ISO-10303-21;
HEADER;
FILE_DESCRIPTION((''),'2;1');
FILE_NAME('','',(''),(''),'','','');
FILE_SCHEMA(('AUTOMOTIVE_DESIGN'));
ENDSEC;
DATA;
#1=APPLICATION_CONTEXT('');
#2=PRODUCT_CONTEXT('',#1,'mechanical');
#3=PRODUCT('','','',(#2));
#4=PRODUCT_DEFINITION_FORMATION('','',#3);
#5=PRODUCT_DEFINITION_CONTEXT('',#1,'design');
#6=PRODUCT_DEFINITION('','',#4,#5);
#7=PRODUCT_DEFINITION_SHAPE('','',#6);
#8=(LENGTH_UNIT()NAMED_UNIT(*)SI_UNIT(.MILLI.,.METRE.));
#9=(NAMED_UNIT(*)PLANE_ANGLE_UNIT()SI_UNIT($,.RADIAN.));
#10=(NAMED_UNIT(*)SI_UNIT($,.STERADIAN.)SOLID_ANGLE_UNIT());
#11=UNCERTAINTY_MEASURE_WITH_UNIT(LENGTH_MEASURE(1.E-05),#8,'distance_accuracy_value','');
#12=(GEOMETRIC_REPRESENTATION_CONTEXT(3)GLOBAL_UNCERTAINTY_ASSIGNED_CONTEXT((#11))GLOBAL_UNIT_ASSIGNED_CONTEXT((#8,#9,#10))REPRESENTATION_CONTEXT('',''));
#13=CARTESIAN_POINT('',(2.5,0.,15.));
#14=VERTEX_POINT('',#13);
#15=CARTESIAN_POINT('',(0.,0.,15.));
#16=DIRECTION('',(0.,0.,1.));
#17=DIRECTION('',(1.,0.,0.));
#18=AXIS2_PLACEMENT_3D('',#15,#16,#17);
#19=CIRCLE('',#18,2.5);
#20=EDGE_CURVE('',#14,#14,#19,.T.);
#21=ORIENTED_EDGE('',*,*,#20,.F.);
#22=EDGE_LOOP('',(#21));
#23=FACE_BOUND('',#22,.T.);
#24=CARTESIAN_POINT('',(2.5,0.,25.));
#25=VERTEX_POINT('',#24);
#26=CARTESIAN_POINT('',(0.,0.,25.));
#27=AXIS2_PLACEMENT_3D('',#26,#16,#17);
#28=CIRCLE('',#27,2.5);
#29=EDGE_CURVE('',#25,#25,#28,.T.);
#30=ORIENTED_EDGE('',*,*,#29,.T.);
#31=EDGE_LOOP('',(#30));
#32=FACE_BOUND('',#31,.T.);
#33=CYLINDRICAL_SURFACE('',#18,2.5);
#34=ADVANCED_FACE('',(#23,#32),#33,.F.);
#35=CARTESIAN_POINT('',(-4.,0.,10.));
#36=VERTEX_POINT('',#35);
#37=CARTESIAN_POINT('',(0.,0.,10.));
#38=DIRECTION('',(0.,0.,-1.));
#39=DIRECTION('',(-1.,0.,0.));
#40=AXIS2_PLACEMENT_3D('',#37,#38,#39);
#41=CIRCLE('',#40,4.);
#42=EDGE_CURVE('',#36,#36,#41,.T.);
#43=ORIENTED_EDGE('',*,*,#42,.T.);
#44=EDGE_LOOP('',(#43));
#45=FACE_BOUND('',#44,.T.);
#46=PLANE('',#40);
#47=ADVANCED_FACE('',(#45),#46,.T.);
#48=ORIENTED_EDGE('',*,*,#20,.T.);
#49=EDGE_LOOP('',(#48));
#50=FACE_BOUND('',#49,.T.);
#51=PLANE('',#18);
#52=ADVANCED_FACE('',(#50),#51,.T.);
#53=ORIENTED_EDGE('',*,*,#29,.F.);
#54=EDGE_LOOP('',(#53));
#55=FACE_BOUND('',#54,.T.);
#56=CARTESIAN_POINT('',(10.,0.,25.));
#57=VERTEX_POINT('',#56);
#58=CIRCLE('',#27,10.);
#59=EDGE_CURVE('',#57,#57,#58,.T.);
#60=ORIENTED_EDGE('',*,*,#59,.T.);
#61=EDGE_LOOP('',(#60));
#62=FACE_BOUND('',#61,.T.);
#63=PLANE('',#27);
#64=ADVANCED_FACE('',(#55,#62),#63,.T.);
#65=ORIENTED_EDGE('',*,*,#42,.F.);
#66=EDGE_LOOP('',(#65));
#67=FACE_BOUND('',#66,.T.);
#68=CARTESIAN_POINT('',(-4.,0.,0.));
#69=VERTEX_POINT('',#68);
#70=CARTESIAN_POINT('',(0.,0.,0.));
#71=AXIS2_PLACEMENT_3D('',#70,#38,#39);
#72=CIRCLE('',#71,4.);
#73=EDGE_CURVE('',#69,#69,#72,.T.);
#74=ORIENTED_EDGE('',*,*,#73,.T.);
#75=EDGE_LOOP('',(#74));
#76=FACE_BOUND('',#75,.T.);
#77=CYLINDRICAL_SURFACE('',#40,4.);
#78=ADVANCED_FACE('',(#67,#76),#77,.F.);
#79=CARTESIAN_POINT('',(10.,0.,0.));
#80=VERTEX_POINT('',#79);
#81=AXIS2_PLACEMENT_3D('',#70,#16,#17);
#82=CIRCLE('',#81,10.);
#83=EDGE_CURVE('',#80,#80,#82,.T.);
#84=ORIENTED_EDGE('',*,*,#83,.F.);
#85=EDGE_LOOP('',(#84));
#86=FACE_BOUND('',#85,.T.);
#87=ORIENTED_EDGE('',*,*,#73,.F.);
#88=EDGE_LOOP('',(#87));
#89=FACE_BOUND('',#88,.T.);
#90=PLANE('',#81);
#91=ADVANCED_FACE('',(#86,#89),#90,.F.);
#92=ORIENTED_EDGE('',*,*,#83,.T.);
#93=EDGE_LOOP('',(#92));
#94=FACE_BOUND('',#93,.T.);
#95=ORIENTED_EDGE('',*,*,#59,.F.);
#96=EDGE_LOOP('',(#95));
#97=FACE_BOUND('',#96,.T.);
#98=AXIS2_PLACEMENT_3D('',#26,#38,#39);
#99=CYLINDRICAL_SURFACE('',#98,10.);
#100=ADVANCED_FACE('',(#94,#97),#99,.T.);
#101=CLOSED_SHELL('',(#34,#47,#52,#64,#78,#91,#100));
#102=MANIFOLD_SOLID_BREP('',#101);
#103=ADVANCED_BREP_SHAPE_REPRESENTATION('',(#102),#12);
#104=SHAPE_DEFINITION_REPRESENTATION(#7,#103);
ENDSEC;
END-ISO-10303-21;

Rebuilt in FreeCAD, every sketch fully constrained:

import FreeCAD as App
import Part
import Sketcher

doc = App.newDocument("Part")
body = doc.addObject("PartDesign::Body", "Body")

# Sketch on XY plane
sketch1 = body.newObject("Sketcher::SketchObject", "Sketch")
sketch1.AttachmentSupport = (doc.getObject("XY_Plane"), [""])
sketch1.MapMode = "FlatFace"
sketch1.addGeometry(Part.Circle(App.Vector(0, 0, 0), App.Vector(0, 0, 1), 10), False)
sketch1.addConstraint(Sketcher.Constraint("Coincident", 0, 3, -1, 1))
sketch1.addConstraint(Sketcher.Constraint("Diameter", 0, 20.0))
pad1 = body.newObject("PartDesign::Pad", "Pad")
pad1.Profile = sketch1
pad1.Length = 25

# Sketch on XY plane
sketch2 = body.newObject("Sketcher::SketchObject", "Sketch001")
sketch2.AttachmentSupport = (doc.getObject("XY_Plane"), [""])
sketch2.MapMode = "FlatFace"
sketch2.AttachmentOffset = App.Placement(App.Vector(0, 0, 25), App.Rotation())
sketch2.addGeometry(Part.Circle(App.Vector(0, 0, 0), App.Vector(0, 0, 1), 2.5), False)
sketch2.addConstraint(Sketcher.Constraint("Coincident", 0, 3, -1, 1))
sketch2.addConstraint(Sketcher.Constraint("Diameter", 0, 5.0))
pocket1 = body.newObject("PartDesign::Pocket", "Pocket")
pocket1.Profile = sketch2
pocket1.Length = 10

# Sketch on XY plane
sketch3 = body.newObject("Sketcher::SketchObject", "Sketch002")
sketch3.AttachmentSupport = (doc.getObject("XY_Plane"), [""])
sketch3.MapMode = "FlatFace"
sketch3.addGeometry(Part.Circle(App.Vector(0, 0, 0), App.Vector(0, 0, 1), 4), False)
sketch3.addConstraint(Sketcher.Constraint("Coincident", 0, 3, -1, 1))
sketch3.addConstraint(Sketcher.Constraint("Diameter", 0, 8.0))
pocket2 = body.newObject("PartDesign::Pocket", "Pocket001")
pocket2.Profile = sketch3
pocket2.Length = 10
pocket2.Reversed = True

doc.recompute()
